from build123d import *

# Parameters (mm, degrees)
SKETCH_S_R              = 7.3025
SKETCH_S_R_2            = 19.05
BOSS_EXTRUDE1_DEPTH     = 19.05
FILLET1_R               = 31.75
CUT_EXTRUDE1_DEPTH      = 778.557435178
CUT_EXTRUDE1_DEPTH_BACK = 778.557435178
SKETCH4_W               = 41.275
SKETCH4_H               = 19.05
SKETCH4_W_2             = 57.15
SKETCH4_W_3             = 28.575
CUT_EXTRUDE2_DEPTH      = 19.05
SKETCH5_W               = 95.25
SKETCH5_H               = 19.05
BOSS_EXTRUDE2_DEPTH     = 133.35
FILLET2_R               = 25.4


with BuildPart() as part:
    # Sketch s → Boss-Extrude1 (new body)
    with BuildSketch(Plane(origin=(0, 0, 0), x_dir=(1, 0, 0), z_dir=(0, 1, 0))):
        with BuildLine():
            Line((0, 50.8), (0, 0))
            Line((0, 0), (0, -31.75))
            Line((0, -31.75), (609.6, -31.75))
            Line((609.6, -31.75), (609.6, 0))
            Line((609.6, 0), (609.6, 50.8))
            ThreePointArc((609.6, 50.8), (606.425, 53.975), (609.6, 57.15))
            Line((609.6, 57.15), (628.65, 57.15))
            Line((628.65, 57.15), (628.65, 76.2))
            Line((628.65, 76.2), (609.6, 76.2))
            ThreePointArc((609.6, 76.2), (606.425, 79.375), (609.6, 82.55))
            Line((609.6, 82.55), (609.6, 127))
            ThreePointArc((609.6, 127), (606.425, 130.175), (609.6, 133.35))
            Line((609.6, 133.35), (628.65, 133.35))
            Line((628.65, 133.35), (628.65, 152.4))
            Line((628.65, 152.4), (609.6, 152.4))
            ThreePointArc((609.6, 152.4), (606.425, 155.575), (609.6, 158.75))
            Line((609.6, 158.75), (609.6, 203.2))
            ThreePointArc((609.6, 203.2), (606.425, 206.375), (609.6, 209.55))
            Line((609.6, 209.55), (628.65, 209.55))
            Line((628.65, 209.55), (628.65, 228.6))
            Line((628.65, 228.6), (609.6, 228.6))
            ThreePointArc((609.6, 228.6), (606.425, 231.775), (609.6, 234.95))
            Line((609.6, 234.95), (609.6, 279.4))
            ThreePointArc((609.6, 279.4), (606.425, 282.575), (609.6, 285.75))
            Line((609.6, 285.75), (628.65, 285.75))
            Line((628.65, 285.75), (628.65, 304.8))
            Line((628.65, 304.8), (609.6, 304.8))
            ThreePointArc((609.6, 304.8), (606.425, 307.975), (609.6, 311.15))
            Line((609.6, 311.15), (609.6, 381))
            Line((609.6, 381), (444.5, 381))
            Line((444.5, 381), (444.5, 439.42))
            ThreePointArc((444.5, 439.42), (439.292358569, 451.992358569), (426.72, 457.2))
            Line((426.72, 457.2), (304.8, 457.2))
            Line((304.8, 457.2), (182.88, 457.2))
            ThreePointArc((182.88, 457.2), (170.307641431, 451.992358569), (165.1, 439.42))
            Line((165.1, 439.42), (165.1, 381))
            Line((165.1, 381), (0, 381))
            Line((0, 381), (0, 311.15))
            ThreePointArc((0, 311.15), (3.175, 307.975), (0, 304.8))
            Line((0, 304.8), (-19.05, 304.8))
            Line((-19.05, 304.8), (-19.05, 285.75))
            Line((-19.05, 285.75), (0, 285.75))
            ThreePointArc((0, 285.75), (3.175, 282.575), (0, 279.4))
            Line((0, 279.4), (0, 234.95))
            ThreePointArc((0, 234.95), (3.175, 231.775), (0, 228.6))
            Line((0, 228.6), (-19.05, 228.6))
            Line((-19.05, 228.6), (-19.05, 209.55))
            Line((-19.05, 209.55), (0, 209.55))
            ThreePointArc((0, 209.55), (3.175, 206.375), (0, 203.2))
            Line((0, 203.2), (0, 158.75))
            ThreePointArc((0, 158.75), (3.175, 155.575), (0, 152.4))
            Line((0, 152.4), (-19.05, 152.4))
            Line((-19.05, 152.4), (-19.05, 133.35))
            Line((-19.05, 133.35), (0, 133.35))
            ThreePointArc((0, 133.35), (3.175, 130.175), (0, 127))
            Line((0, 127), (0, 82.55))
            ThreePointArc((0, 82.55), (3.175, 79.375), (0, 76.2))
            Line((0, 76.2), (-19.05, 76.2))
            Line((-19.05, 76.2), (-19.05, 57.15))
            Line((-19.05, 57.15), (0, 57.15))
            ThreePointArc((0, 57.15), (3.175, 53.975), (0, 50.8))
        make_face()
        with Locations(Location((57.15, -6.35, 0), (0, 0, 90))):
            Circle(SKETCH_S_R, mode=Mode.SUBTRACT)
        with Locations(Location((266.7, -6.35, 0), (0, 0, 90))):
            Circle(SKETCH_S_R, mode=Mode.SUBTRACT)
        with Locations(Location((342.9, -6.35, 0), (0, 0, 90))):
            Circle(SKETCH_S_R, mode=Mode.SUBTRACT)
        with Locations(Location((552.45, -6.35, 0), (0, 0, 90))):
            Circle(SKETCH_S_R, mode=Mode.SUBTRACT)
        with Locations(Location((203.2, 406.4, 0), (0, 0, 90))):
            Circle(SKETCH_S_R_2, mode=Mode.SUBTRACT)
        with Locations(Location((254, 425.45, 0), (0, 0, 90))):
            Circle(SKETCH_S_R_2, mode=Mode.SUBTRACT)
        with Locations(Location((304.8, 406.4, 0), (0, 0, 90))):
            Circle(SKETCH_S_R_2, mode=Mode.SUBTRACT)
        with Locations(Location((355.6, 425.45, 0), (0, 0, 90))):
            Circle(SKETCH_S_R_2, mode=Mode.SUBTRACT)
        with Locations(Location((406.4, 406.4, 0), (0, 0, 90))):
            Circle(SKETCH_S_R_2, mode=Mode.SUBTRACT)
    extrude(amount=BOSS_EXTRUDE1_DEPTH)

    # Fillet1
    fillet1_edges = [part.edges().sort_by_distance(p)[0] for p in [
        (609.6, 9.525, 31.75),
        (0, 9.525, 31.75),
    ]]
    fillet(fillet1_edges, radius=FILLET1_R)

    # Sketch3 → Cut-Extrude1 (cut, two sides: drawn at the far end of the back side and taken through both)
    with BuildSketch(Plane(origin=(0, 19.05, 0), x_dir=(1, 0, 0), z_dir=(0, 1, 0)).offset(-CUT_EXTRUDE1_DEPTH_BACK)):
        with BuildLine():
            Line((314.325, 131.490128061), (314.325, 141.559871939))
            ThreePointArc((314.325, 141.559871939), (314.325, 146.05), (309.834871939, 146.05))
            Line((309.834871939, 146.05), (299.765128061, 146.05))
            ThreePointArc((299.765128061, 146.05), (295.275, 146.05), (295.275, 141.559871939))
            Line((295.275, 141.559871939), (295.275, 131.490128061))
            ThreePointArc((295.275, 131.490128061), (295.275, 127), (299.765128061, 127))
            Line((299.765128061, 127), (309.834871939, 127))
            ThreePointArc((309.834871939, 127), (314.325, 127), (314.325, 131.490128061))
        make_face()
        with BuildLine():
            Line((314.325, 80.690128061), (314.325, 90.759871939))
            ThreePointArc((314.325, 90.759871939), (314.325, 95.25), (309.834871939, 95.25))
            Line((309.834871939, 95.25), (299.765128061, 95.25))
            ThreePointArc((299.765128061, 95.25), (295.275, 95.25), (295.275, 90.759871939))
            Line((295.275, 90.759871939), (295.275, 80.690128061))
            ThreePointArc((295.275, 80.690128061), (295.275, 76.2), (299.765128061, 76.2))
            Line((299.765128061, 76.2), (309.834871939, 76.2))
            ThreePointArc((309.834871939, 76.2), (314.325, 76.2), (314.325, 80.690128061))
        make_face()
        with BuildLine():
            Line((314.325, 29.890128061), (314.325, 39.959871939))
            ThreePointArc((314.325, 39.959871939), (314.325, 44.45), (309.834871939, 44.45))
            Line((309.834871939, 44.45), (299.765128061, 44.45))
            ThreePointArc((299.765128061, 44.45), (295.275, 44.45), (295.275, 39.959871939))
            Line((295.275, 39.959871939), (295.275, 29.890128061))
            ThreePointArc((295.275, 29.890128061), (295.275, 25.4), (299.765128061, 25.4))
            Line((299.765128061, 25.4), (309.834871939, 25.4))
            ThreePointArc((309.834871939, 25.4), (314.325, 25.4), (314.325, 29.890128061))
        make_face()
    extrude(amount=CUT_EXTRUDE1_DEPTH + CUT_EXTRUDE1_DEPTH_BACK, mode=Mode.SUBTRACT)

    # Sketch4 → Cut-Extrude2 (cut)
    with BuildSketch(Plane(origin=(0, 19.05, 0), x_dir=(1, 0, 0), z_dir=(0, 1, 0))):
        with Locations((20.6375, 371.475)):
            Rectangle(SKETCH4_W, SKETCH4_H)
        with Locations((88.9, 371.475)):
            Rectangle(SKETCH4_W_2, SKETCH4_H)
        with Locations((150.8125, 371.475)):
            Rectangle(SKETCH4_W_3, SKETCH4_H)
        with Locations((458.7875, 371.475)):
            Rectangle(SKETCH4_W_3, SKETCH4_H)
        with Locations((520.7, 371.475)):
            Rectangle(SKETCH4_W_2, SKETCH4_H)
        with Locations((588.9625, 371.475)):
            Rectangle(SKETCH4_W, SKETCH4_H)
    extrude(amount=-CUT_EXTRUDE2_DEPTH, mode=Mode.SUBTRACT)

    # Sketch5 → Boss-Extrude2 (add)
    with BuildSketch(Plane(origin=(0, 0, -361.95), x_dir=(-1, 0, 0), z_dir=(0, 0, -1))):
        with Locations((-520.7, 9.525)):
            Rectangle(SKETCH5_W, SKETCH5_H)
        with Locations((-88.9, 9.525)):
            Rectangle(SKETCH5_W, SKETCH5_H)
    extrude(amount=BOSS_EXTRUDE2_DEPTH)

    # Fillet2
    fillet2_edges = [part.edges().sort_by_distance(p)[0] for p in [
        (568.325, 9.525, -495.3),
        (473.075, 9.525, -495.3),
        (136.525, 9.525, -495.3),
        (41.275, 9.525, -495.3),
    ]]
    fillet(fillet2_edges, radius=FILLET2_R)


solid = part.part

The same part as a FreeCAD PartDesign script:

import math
import FreeCAD as App
import Part
import Sketcher
Q = App.Units.Quantity


def edges_at(feature, points):
    """Names of the edges that pass closest to the given points."""
    edges = feature.Shape.Edges
    near = lambda p: min(range(len(edges)), key=lambda i: edges[i].distToShape(Part.Vertex(*p))[0])
    return sorted({f"Edge{near(p) + 1}" for p in points})


def add_polygon(sketch, points):
    """Adds a closed chain of lines whose ends are joined by coincident constraints."""
    first, n = sketch.GeometryCount, len(points)
    for a, b in zip(points, points[1:] + points[:1]):
        sketch.addGeometry(Part.LineSegment(App.Vector(*a, 0), App.Vector(*b, 0)), False)
    for i in range(n):
        sketch.addConstraint(Sketcher.Constraint("Coincident", first + i, 2, first + (i + 1) % n, 1))

doc = App.newDocument("Part")
body = doc.addObject("PartDesign::Body", "Body")

sketch1 = doc.addObject("Sketcher::SketchObject", "Sketch")
body.addObject(sketch1)
sketch1.AttachmentSupport = (doc.XZ_Plane, [""])
sketch1.MapMode = "FlatFace"
sketch1.addGeometry(Part.LineSegment(App.Vector(0, -50.8, 0), App.Vector(0, 31.8, 0)), False)
sketch1.addGeometry(Part.LineSegment(App.Vector(0, 31.8, 0), App.Vector(609.6, 31.8, 0)), False)
sketch1.addGeometry(Part.LineSegment(App.Vector(609.6, 31.8, 0), App.Vector(609.6, -50.8, 0)), False)
sketch1.addGeometry(Part.ArcOfCircle(Part.Circle(App.Vector(609.6, -54, 0), App.Vector(0, 0, 1), 3.2), math.radians(90), math.radians(270)), False)
sketch1.addGeometry(Part.LineSegment(App.Vector(609.6, -57.1, 0), App.Vector(628.6, -57.1, 0)), False)
sketch1.addGeometry(Part.LineSegment(App.Vector(628.6, -57.1, 0), App.Vector(628.6, -76.2, 0)), False)
sketch1.addGeometry(Part.LineSegment(App.Vector(628.6, -76.2, 0), App.Vector(609.6, -76.2, 0)), False)
sketch1.addGeometry(Part.ArcOfCircle(Part.Circle(App.Vector(609.6, -79.4, 0), App.Vector(0, 0, 1), 3.2), math.radians(90), math.radians(270)), False)
sketch1.addGeometry(Part.LineSegment(App.Vector(609.6, -82.5, 0), App.Vector(609.6, -127, 0)), False)
sketch1.addGeometry(Part.ArcOfCircle(Part.Circle(App.Vector(609.6, -130.2, 0), App.Vector(0, 0, 1), 3.2), math.radians(90), math.radians(270)), False)
sketch1.addGeometry(Part.LineSegment(App.Vector(609.6, -133.3, 0), App.Vector(628.6, -133.3, 0)), False)
sketch1.addGeometry(Part.LineSegment(App.Vector(628.6, -133.3, 0), App.Vector(628.6, -152.4, 0)), False)
sketch1.addGeometry(Part.LineSegment(App.Vector(628.6, -152.4, 0), App.Vector(609.6, -152.4, 0)), False)
sketch1.addGeometry(Part.ArcOfCircle(Part.Circle(App.Vector(609.6, -155.6, 0), App.Vector(0, 0, 1), 3.2), math.radians(90), math.radians(270)), False)
sketch1.addGeometry(Part.LineSegment(App.Vector(609.6, -158.8, 0), App.Vector(609.6, -203.2, 0)), False)
sketch1.addGeometry(Part.ArcOfCircle(Part.Circle(App.Vector(609.6, -206.4, 0), App.Vector(0, 0, 1), 3.2), math.radians(90), math.radians(270)), False)
sketch1.addGeometry(Part.LineSegment(App.Vector(609.6, -209.6, 0), App.Vector(628.6, -209.6, 0)), False)
sketch1.addGeometry(Part.LineSegment(App.Vector(628.6, -209.6, 0), App.Vector(628.6, -228.6, 0)), False)
sketch1.addGeometry(Part.LineSegment(App.Vector(628.6, -228.6, 0), App.Vector(609.6, -228.6, 0)), False)
sketch1.addGeometry(Part.ArcOfCircle(Part.Circle(App.Vector(609.6, -231.8, 0), App.Vector(0, 0, 1), 3.2), math.radians(90), math.radians(270)), False)
sketch1.addGeometry(Part.LineSegment(App.Vector(609.6, -234.9, 0), App.Vector(609.6, -279.4, 0)), False)
sketch1.addGeometry(Part.ArcOfCircle(Part.Circle(App.Vector(609.6, -282.6, 0), App.Vector(0, 0, 1), 3.2), math.radians(90), math.radians(270)), False)
sketch1.addGeometry(Part.LineSegment(App.Vector(609.6, -285.8, 0), App.Vector(628.6, -285.8, 0)), False)
sketch1.addGeometry(Part.LineSegment(App.Vector(628.6, -285.8, 0), App.Vector(628.6, -304.8, 0)), False)
sketch1.addGeometry(Part.LineSegment(App.Vector(628.6, -304.8, 0), App.Vector(609.6, -304.8, 0)), False)
sketch1.addGeometry(Part.ArcOfCircle(Part.Circle(App.Vector(609.6, -308, 0), App.Vector(0, 0, 1), 3.2), math.radians(90), math.radians(270)), False)
sketch1.addGeometry(Part.LineSegment(App.Vector(609.6, -311.1, 0), App.Vector(609.6, -381, 0)), False)
sketch1.addGeometry(Part.LineSegment(App.Vector(609.6, -381, 0), App.Vector(444.5, -381, 0)), False)
sketch1.addGeometry(Part.LineSegment(App.Vector(444.5, -381, 0), App.Vector(444.5, -439.4, 0)), False)
sketch1.addGeometry(Part.ArcOfCircle(Part.Circle(App.Vector(426.7, -439.4, 0), App.Vector(0, 0, 1), 17.8), math.radians(-90), math.radians(0)), False)
sketch1.addGeometry(Part.LineSegment(App.Vector(426.7, -457.2, 0), App.Vector(182.9, -457.2, 0)), False)
sketch1.addGeometry(Part.ArcOfCircle(Part.Circle(App.Vector(182.9, -439.4, 0), App.Vector(0, 0, 1), 17.8), math.radians(-180), math.radians(-90)), False)
sketch1.addGeometry(Part.LineSegment(App.Vector(165.1, -439.4, 0), App.Vector(165.1, -381, 0)), False)
sketch1.addGeometry(Part.LineSegment(App.Vector(165.1, -381, 0), App.Vector(0, -381, 0)), False)
sketch1.addGeometry(Part.LineSegment(App.Vector(0, -381, 0), App.Vector(0, -311.1, 0)), False)
sketch1.addGeometry(Part.ArcOfCircle(Part.Circle(App.Vector(0, -308, 0), App.Vector(0, 0, 1), 3.2), math.radians(-90), math.radians(90)), False)
sketch1.addGeometry(Part.LineSegment(App.Vector(0, -304.8, 0), App.Vector(-19.1, -304.8, 0)), False)
sketch1.addGeometry(Part.LineSegment(App.Vector(-19.1, -304.8, 0), App.Vector(-19.1, -285.8, 0)), False)
sketch1.addGeometry(Part.LineSegment(App.Vector(-19.1, -285.8, 0), App.Vector(0, -285.8, 0)), False)
sketch1.addGeometry(Part.ArcOfCircle(Part.Circle(App.Vector(0, -282.6, 0), App.Vector(0, 0, 1), 3.2), math.radians(-90), math.radians(90)), False)
sketch1.addGeometry(Part.LineSegment(App.Vector(0, -279.4, 0), App.Vector(0, -234.9, 0)), False)
sketch1.addGeometry(Part.ArcOfCircle(Part.Circle(App.Vector(0, -231.8, 0), App.Vector(0, 0, 1), 3.2), math.radians(-90), math.radians(90)), False)
sketch1.addGeometry(Part.LineSegment(App.Vector(0, -228.6, 0), App.Vector(-19.1, -228.6, 0)), False)
sketch1.addGeometry(Part.LineSegment(App.Vector(-19.1, -228.6, 0), App.Vector(-19.1, -209.6, 0)), False)
sketch1.addGeometry(Part.LineSegment(App.Vector(-19.1, -209.6, 0), App.Vector(0, -209.6, 0)), False)
sketch1.addGeometry(Part.ArcOfCircle(Part.Circle(App.Vector(0, -206.4, 0), App.Vector(0, 0, 1), 3.2), math.radians(-90), math.radians(90)), False)
sketch1.addGeometry(Part.LineSegment(App.Vector(0, -203.2, 0), App.Vector(0, -158.8, 0)), False)
sketch1.addGeometry(Part.ArcOfCircle(Part.Circle(App.Vector(0, -155.6, 0), App.Vector(0, 0, 1), 3.2), math.radians(-90), math.radians(90)), False)
sketch1.addGeometry(Part.LineSegment(App.Vector(0, -152.4, 0), App.Vector(-19.1, -152.4, 0)), False)
sketch1.addGeometry(Part.LineSegment(App.Vector(-19.1, -152.4, 0), App.Vector(-19.1, -133.3, 0)), False)
sketch1.addGeometry(Part.LineSegment(App.Vector(-19.1, -133.3, 0), App.Vector(0, -133.3, 0)), False)
sketch1.addGeometry(Part.ArcOfCircle(Part.Circle(App.Vector(0, -130.2, 0), App.Vector(0, 0, 1), 3.2), math.radians(-90), math.radians(90)), False)
sketch1.addGeometry(Part.LineSegment(App.Vector(0, -127, 0), App.Vector(0, -82.5, 0)), False)
sketch1.addGeometry(Part.ArcOfCircle(Part.Circle(App.Vector(0, -79.4, 0), App.Vector(0, 0, 1), 3.2), math.radians(-90), math.radians(90)), False)
sketch1.addGeometry(Part.LineSegment(App.Vector(0, -76.2, 0), App.Vector(-19.1, -76.2, 0)), False)
sketch1.addGeometry(Part.LineSegment(App.Vector(-19.1, -76.2, 0), App.Vector(-19.1, -57.1, 0)), False)
sketch1.addGeometry(Part.LineSegment(App.Vector(-19.1, -57.1, 0), App.Vector(0, -57.1, 0)), False)
sketch1.addGeometry(Part.ArcOfCircle(Part.Circle(App.Vector(0, -54, 0), App.Vector(0, 0, 1), 3.2), math.radians(-90), math.radians(90)), False)
sketch1.addGeometry(Part.Circle(App.Vector(57.1, 6.3, 0), App.Vector(0, 0, 1), 7.3), False)
sketch1.addGeometry(Part.Circle(App.Vector(266.7, 6.3, 0), App.Vector(0, 0, 1), 7.3), False)
sketch1.addGeometry(Part.Circle(App.Vector(342.9, 6.3, 0), App.Vector(0, 0, 1), 7.3), False)
sketch1.addGeometry(Part.Circle(App.Vector(552.5, 6.3, 0), App.Vector(0, 0, 1), 7.3), False)
sketch1.addGeometry(Part.Circle(App.Vector(203.2, -406.4, 0), App.Vector(0, 0, 1), 19.1), False)
sketch1.addGeometry(Part.Circle(App.Vector(304.8, -406.4, 0), App.Vector(0, 0, 1), 19.1), False)
sketch1.addGeometry(Part.Circle(App.Vector(254, -425.4, 0), App.Vector(0, 0, 1), 19.1), False)
sketch1.addGeometry(Part.Circle(App.Vector(355.6, -425.4, 0), App.Vector(0, 0, 1), 19.1), False)
sketch1.addGeometry(Part.Circle(App.Vector(406.4, -406.4, 0), App.Vector(0, 0, 1), 19.1), False)
sketch1.addConstraint(Sketcher.Constraint("Coincident", 0, 2, 1, 1))
sketch1.addConstraint(Sketcher.Constraint("Coincident", 1, 2, 2, 1))
sketch1.addConstraint(Sketcher.Constraint("Coincident", 2, 2, 3, 1))
sketch1.addConstraint(Sketcher.Constraint("Tangent", 3, 2, 4, 1))
sketch1.addConstraint(Sketcher.Constraint("Coincident", 4, 2, 5, 1))
sketch1.addConstraint(Sketcher.Constraint("Coincident", 5, 2, 6, 1))
sketch1.addConstraint(Sketcher.Constraint("Tangent", 6, 2, 7, 1))
sketch1.addConstraint(Sketcher.Constraint("Coincident", 7, 2, 8, 1))
sketch1.addConstraint(Sketcher.Constraint("Coincident", 8, 2, 9, 1))
sketch1.addConstraint(Sketcher.Constraint("Tangent", 9, 2, 10, 1))
sketch1.addConstraint(Sketcher.Constraint("Coincident", 10, 2, 11, 1))
sketch1.addConstraint(Sketcher.Constraint("Coincident", 11, 2, 12, 1))
sketch1.addConstraint(Sketcher.Constraint("Tangent", 12, 2, 13, 1))
sketch1.addConstraint(Sketcher.Constraint("Coincident", 13, 2, 14, 1))
sketch1.addConstraint(Sketcher.Constraint("Coincident", 14, 2, 15, 1))
sketch1.addConstraint(Sketcher.Constraint("Tangent", 15, 2, 16, 1))
sketch1.addConstraint(Sketcher.Constraint("Coincident", 16, 2, 17, 1))
sketch1.addConstraint(Sketcher.Constraint("Coincident", 17, 2, 18, 1))
sketch1.addConstraint(Sketcher.Constraint("Tangent", 18, 2, 19, 1))
sketch1.addConstraint(Sketcher.Constraint("Coincident", 19, 2, 20, 1))
sketch1.addConstraint(Sketcher.Constraint("Coincident", 20, 2, 21, 1))
sketch1.addConstraint(Sketcher.Constraint("Tangent", 21, 2, 22, 1))
sketch1.addConstraint(Sketcher.Constraint("Coincident", 22, 2, 23, 1))
sketch1.addConstraint(Sketcher.Constraint("Coincident", 23, 2, 24, 1))
sketch1.addConstraint(Sketcher.Constraint("Tangent", 24, 2, 25, 1))
sketch1.addConstraint(Sketcher.Constraint("Coincident", 25, 2, 26, 1))
sketch1.addConstraint(Sketcher.Constraint("Coincident", 26, 2, 27, 1))
sketch1.addConstraint(Sketcher.Constraint("Coincident", 27, 2, 28, 1))
sketch1.addConstraint(Sketcher.Constraint("Tangent", 28, 2, 29, 2))
sketch1.addConstraint(Sketcher.Constraint("Tangent", 29, 1, 30, 1))
sketch1.addConstraint(Sketcher.Constraint("Tangent", 30, 2, 31, 2))
sketch1.addConstraint(Sketcher.Constraint("Tangent", 31, 1, 32, 1))
sketch1.addConstraint(Sketcher.Constraint("Coincident", 32, 2, 33, 1))
sketch1.addConstraint(Sketcher.Constraint("Coincident", 33, 2, 34, 1))
sketch1.addConstraint(Sketcher.Constraint("Coincident", 34, 2, 35, 1))
sketch1.addConstraint(Sketcher.Constraint("Tangent", 35, 2, 36, 1))
sketch1.addConstraint(Sketcher.Constraint("Coincident", 36, 2, 37, 1))
sketch1.addConstraint(Sketcher.Constraint("Coincident", 37, 2, 38, 1))
sketch1.addConstraint(Sketcher.Constraint("Tangent", 38, 2, 39, 1))
sketch1.addConstraint(Sketcher.Constraint("Coincident", 39, 2, 40, 1))
sketch1.addConstraint(Sketcher.Constraint("Coincident", 40, 2, 41, 1))
sketch1.addConstraint(Sketcher.Constraint("Tangent", 41, 2, 42, 1))
sketch1.addConstraint(Sketcher.Constraint("Coincident", 42, 2, 43, 1))
sketch1.addConstraint(Sketcher.Constraint("Coincident", 43, 2, 44, 1))
sketch1.addConstraint(Sketcher.Constraint("Tangent", 44, 2, 45, 1))
sketch1.addConstraint(Sketcher.Constraint("Coincident", 45, 2, 46, 1))
sketch1.addConstraint(Sketcher.Constraint("Coincident", 46, 2, 47, 1))
sketch1.addConstraint(Sketcher.Constraint("Tangent", 47, 2, 48, 1))
sketch1.addConstraint(Sketcher.Constraint("Coincident", 48, 2, 49, 1))
sketch1.addConstraint(Sketcher.Constraint("Coincident", 49, 2, 50, 1))
sketch1.addConstraint(Sketcher.Constraint("Tangent", 50, 2, 51, 1))
sketch1.addConstraint(Sketcher.Constraint("Coincident", 51, 2, 52, 1))
sketch1.addConstraint(Sketcher.Constraint("Coincident", 52, 2, 53, 1))
sketch1.addConstraint(Sketcher.Constraint("Tangent", 53, 2, 54, 1))
sketch1.addConstraint(Sketcher.Constraint("Coincident", 54, 2, 55, 1))
sketch1.addConstraint(Sketcher.Constraint("Coincident", 55, 2, 56, 1))
sketch1.addConstraint(Sketcher.Constraint("Tangent", 56, 2, 57, 1))
sketch1.addConstraint(Sketcher.Constraint("Coincident", 57, 2, 0, 1))
sketch1.addConstraint(Sketcher.Constraint("Vertical", 0))
sketch1.addConstraint(Sketcher.Constraint("Horizontal", 1))
sketch1.addConstraint(Sketcher.Constraint("Vertical", 2))
sketch1.addConstraint(Sketcher.Constraint("Horizontal", 4))
sketch1.addConstraint(Sketcher.Constraint("Vertical", 5))
sketch1.addConstraint(Sketcher.Constraint("Horizontal", 6))
sketch1.addConstraint(Sketcher.Constraint("Vertical", 8))
sketch1.addConstraint(Sketcher.Constraint("Horizontal", 10))
sketch1.addConstraint(Sketcher.Constraint("Vertical", 11))
sketch1.addConstraint(Sketcher.Constraint("Horizontal", 12))
sketch1.addConstraint(Sketcher.Constraint("Vertical", 14))
sketch1.addConstraint(Sketcher.Constraint("Horizontal", 16))
sketch1.addConstraint(Sketcher.Constraint("Vertical", 17))
sketch1.addConstraint(Sketcher.Constraint("Horizontal", 18))
sketch1.addConstraint(Sketcher.Constraint("Vertical", 20))
sketch1.addConstraint(Sketcher.Constraint("Horizontal", 22))
sketch1.addConstraint(Sketcher.Constraint("Vertical", 23))
sketch1.addConstraint(Sketcher.Constraint("Horizontal", 24))
sketch1.addConstraint(Sketcher.Constraint("Vertical", 26))
sketch1.addConstraint(Sketcher.Constraint("Horizontal", 27))
sketch1.addConstraint(Sketcher.Constraint("Vertical", 28))
sketch1.addConstraint(Sketcher.Constraint("Horizontal", 30))
sketch1.addConstraint(Sketcher.Constraint("Vertical", 32))
sketch1.addConstraint(Sketcher.Constraint("Horizontal", 33))
sketch1.addConstraint(Sketcher.Constraint("Vertical", 34))
sketch1.addConstraint(Sketcher.Constraint("Horizontal", 36))
sketch1.addConstraint(Sketcher.Constraint("Vertical", 37))
sketch1.addConstraint(Sketcher.Constraint("Horizontal", 38))
sketch1.addConstraint(Sketcher.Constraint("Vertical", 40))
sketch1.addConstraint(Sketcher.Constraint("Horizontal", 42))
sketch1.addConstraint(Sketcher.Constraint("Vertical", 43))
sketch1.addConstraint(Sketcher.Constraint("Horizontal", 44))
sketch1.addConstraint(Sketcher.Constraint("Vertical", 46))
sketch1.addConstraint(Sketcher.Constraint("Horizontal", 48))
sketch1.addConstraint(Sketcher.Constraint("Vertical", 49))
sketch1.addConstraint(Sketcher.Constraint("Horizontal", 50))
sketch1.addConstraint(Sketcher.Constraint("Vertical", 52))
sketch1.addConstraint(Sketcher.Constraint("Horizontal", 54))
sketch1.addConstraint(Sketcher.Constraint("Vertical", 55))
sketch1.addConstraint(Sketcher.Constraint("Horizontal", 56))
sketch1.addConstraint(Sketcher.Constraint("Equal", 3, 7))
sketch1.addConstraint(Sketcher.Constraint("Equal", 7, 9))
sketch1.addConstraint(Sketcher.Constraint("Equal", 9, 13))
sketch1.addConstraint(Sketcher.Constraint("Equal", 13, 15))
sketch1.addConstraint(Sketcher.Constraint("Equal", 15, 19))
sketch1.addConstraint(Sketcher.Constraint("Equal", 19, 21))
sketch1.addConstraint(Sketcher.Constraint("Equal", 21, 25))
sketch1.addConstraint(Sketcher.Constraint("Equal", 29, 31))
sketch1.addConstraint(Sketcher.Constraint("Equal", 25, 35))
sketch1.addConstraint(Sketcher.Constraint("Equal", 35, 39))
sketch1.addConstraint(Sketcher.Constraint("Equal", 39, 41))
sketch1.addConstraint(Sketcher.Constraint("Equal", 41, 45))
sketch1.addConstraint(Sketcher.Constraint("Equal", 45, 47))
sketch1.addConstraint(Sketcher.Constraint("Equal", 47, 51))
sketch1.addConstraint(Sketcher.Constraint("Equal", 51, 53))
sketch1.addConstraint(Sketcher.Constraint("Equal", 53, 57))
sketch1.addConstraint(Sketcher.Constraint("Equal", 58, 59))
sketch1.addConstraint(Sketcher.Constraint("Equal", 59, 60))
sketch1.addConstraint(Sketcher.Constraint("Equal", 60, 61))
sketch1.addConstraint(Sketcher.Constraint("Equal", 62, 63))
sketch1.addConstraint(Sketcher.Constraint("Equal", 63, 64))
sketch1.addConstraint(Sketcher.Constraint("Equal", 64, 65))
sketch1.addConstraint(Sketcher.Constraint("Equal", 65, 66))
sketch1.addConstraint(Sketcher.Constraint("PointOnObject", 35, 3, -2))
sketch1.addConstraint(Sketcher.Constraint("PointOnObject", 39, 3, -2))
sketch1.addConstraint(Sketcher.Constraint("PointOnObject", 41, 3, -2))
sketch1.addConstraint(Sketcher.Constraint("PointOnObject", 45, 3, -2))
sketch1.addConstraint(Sketcher.Constraint("PointOnObject", 47, 3, -2))
sketch1.addConstraint(Sketcher.Constraint("PointOnObject", 51, 3, -2))
sketch1.addConstraint(Sketcher.Constraint("PointOnObject", 53, 3, -2))
sketch1.addConstraint(Sketcher.Constraint("PointOnObject", 57, 3, -2))
sketch1.addConstraint(Sketcher.Constraint("PointOnObject", 0, 2, -2))
sketch1.addConstraint(Sketcher.Constraint("PointOnObject", 33, 2, -2))
sketch1.addConstraint(Sketcher.Constraint("PointOnObject", 39, 2, -2))
sketch1.addConstraint(Sketcher.Constraint("PointOnObject", 45, 2, -2))
sketch1.addConstraint(Sketcher.Constraint("PointOnObject", 51, 2, -2))
sketch1.addConstraint(Sketcher.Constraint("Horizontal", 25, 3, 35, 3))
sketch1.addConstraint(Sketcher.Constraint("Horizontal", 21, 3, 39, 3))
sketch1.addConstraint(Sketcher.Constraint("Horizontal", 19, 3, 41, 3))
sketch1.addConstraint(Sketcher.Constraint("Horizontal", 15, 3, 45, 3))
sketch1.addConstraint(Sketcher.Constraint("Horizontal", 13, 3, 47, 3))
sketch1.addConstraint(Sketcher.Constraint("Horizontal", 9, 3, 51, 3))
sketch1.addConstraint(Sketcher.Constraint("Horizontal", 7, 3, 53, 3))
sketch1.addConstraint(Sketcher.Constraint("Horizontal", 3, 3, 57, 3))
sketch1.addConstraint(Sketcher.Constraint("Horizontal", 58, 3, 59, 3))
sketch1.addConstraint(Sketcher.Constraint("Horizontal", 59, 3, 60, 3))
sketch1.addConstraint(Sketcher.Constraint("Horizontal", 60, 3, 61, 3))
sketch1.addConstraint(Sketcher.Constraint("Horizontal", 62, 3, 63, 3))
sketch1.addConstraint(Sketcher.Constraint("Horizontal", 64, 3, 65, 3))
sketch1.addConstraint(Sketcher.Constraint("Horizontal", 63, 3, 66, 3))
sketch1.addConstraint(Sketcher.Constraint("Horizontal", 27, 2, 32, 2))
sketch1.addConstraint(Sketcher.Constraint("Vertical", 3, 3, 7, 3))
sketch1.addConstraint(Sketcher.Constraint("Vertical", 7, 3, 9, 3))
sketch1.addConstraint(Sketcher.Constraint("Vertical", 9, 3, 13, 3))
sketch1.addConstraint(Sketcher.Constraint("Vertical", 13, 3, 15, 3))
sketch1.addConstraint(Sketcher.Constraint("Vertical", 15, 3, 19, 3))
sketch1.addConstraint(Sketcher.Constraint("Vertical", 19, 3, 21, 3))
sketch1.addConstraint(Sketcher.Constraint("Vertical", 21, 3, 25, 3))
sketch1.addConstraint(Sketcher.Constraint("Vertical", 25, 3, 1, 2))
sketch1.addConstraint(Sketcher.Constraint("Vertical", 6, 2, 7, 2))
sketch1.addConstraint(Sketcher.Constraint("Vertical", 5, 2, 10, 2))
sketch1.addConstraint(Sketcher.Constraint("Vertical", 12, 2, 13, 2))
sketch1.addConstraint(Sketcher.Constraint("Vertical", 11, 2, 16, 2))
sketch1.addConstraint(Sketcher.Constraint("Vertical", 18, 2, 19, 2))
sketch1.addConstraint(Sketcher.Constraint("Vertical", 17, 2, 22, 2))
sketch1.addConstraint(Sketcher.Constraint("Vertical", 24, 2, 25, 2))
sketch1.addConstraint(Sketcher.Constraint("Vertical", 37, 2, 42, 2))
sketch1.addConstraint(Sketcher.Constraint("Vertical", 43, 2, 48, 2))
sketch1.addConstraint(Sketcher.Constraint("Vertical", 49, 2, 54, 2))
sketch1.addConstraint(Sketcher.Constraint("Equal", 27, 33))
sketch1.addConstraint(Sketcher.Constraint("Equal", 24, 36))
sketch1.addConstraint(Sketcher.Constraint("Equal", 56, 5))
sketch1.addConstraint(Sketcher.Constraint("Equal", 5, 11))
sketch1.addConstraint(Sketcher.Constraint("Equal", 8, 14))
sketch1.addConstraint(Sketcher.Constraint("Equal", 11, 17))
sketch1.addConstraint(Sketcher.Constraint("Equal", 14, 20))
sketch1.addConstraint(Sketcher.Constraint("Equal", 17, 23))
sketch1.addConstraint(Sketcher.Constraint("Diameter", 62, Q("1.5 in")))
sketch1.addConstraint(Sketcher.Constraint("Radius", 29, Q("0.7 in")))
sketch1.addConstraint(Sketcher.Constraint("DistanceX", 1, 1, 1, 2, Q("24 in")))
sketch1.addConstraint(Sketcher.Constraint("Diameter", 58, Q("0.575 in")))
sketch1.addConstraint(Sketcher.Constraint("DistanceX", 27, 2, 27, 1, Q("6.5 in")))
sketch1.addConstraint(Sketcher.Constraint("DistanceY", 28, 2, 28, 1, Q("2.3 in")))
sketch1.addConstraint(Sketcher.Constraint("DistanceX", -1, 1, 62, 3, Q("8 in")))
sketch1.addConstraint(Sketcher.Constraint("DistanceY", 62, 3, -1, 1, Q("16 in")))
sketch1.addConstraint(Sketcher.Constraint("DistanceX", -1, 1, 63, 3, Q("12 in")))
sketch1.addConstraint(Sketcher.Constraint("DistanceX", -1, 1, 64, 3, Q("10 in")))
sketch1.addConstraint(Sketcher.Constraint("DistanceX", -1, 1, 65, 3, Q("14 in")))
sketch1.addConstraint(Sketcher.Constraint("DistanceX", -1, 1, 66, 3, Q("16 in")))
sketch1.addConstraint(Sketcher.Constraint("DistanceY", 2, 2, -1, 1, Q("2 in")))
sketch1.addConstraint(Sketcher.Constraint("DistanceY", 5, 2, -1, 1, Q("3 in")))
sketch1.addConstraint(Sketcher.Constraint("DistanceY", 8, 2, -1, 1, Q("5 in")))
sketch1.addConstraint(Sketcher.Constraint("DistanceY", 26, 2, -1, 1, Q("15 in")))
sketch1.addConstraint(Sketcher.Constraint("Radius", 3, Q("0.125 in")))
sketch1.addConstraint(Sketcher.Constraint("DistanceY", 0, 1, 0, 2, Q("3.25 in")))
sketch1.addConstraint(Sketcher.Constraint("DistanceX", -1, 1, 59, 3, Q("10.5 in")))
sketch1.addConstraint(Sketcher.Constraint("DistanceX", -1, 1, 60, 3, Q("13.5 in")))
sketch1.addConstraint(Sketcher.Constraint("DistanceX", -1, 1, 58, 3, Q("2.25 in")))
sketch1.addConstraint(Sketcher.Constraint("DistanceY", -1, 1, 58, 3, Q("0.25 in")))
sketch1.addConstraint(Sketcher.Constraint("DistanceX", -1, 1, 61, 3, Q("21.75 in")))
sketch1.addConstraint(Sketcher.Constraint("DistanceY", 64, 3, -1, 1, Q("16.75 in")))
pad1 = doc.addObject("PartDesign::Pad", "Pad")
body.addObject(pad1)
pad1.Profile = sketch1
pad1.Length = Q("0.75 in")
pad1.Reversed = True
doc.recompute()

fillet = doc.addObject("PartDesign::Fillet", "Fillet")
body.addObject(fillet)
fillet.Base = (pad1, edges_at(pad1, [(609.6, 9.525, 31.75), (0, 9.525, 31.75)]))
fillet.Radius = Q("1.25 in")

sketch2 = doc.addObject("Sketcher::SketchObject", "Sketch001")
body.addObject(sketch2)
sketch2.AttachmentSupport = (doc.XZ_Plane, [""])
sketch2.MapMode = "FlatFace"
sketch2.AttachmentOffset = App.Placement(App.Vector(0, 0, -0.75 * 25.4), App.Rotation())
sketch2.addGeometry(Part.LineSegment(App.Vector(314.3, -131.5, 0), App.Vector(314.3, -141.6, 0)), False)
sketch2.addGeometry(Part.ArcOfCircle(Part.Circle(App.Vector(312.1, -143.8, 0), App.Vector(0, 0, 1), 3.2), math.radians(-135), math.radians(45)), False)
sketch2.addGeometry(Part.LineSegment(App.Vector(309.8, -146.1, 0), App.Vector(299.8, -146.1, 0)), False)
sketch2.addGeometry(Part.ArcOfCircle(Part.Circle(App.Vector(297.5, -143.8, 0), App.Vector(0, 0, 1), 3.2), math.radians(135), math.radians(315)), False)
sketch2.addGeometry(Part.LineSegment(App.Vector(295.3, -141.6, 0), App.Vector(295.3, -131.5, 0)), False)
sketch2.addGeometry(Part.ArcOfCircle(Part.Circle(App.Vector(297.5, -129.2, 0), App.Vector(0, 0, 1), 3.2), math.radians(45), math.radians(225)), False)
sketch2.addGeometry(Part.LineSegment(App.Vector(299.8, -127, 0), App.Vector(309.8, -127, 0)), False)
sketch2.addGeometry(Part.ArcOfCircle(Part.Circle(App.Vector(312.1, -129.2, 0), App.Vector(0, 0, 1), 3.2), math.radians(-45), math.radians(135)), False)
sketch2.addGeometry(Part.LineSegment(App.Vector(314.3, -80.7, 0), App.Vector(314.3, -90.8, 0)), False)
sketch2.addGeometry(Part.ArcOfCircle(Part.Circle(App.Vector(312.1, -93, 0), App.Vector(0, 0, 1), 3.2), math.radians(-135), math.radians(45)), False)
sketch2.addGeometry(Part.LineSegment(App.Vector(309.8, -95.2, 0), App.Vector(299.8, -95.2, 0)), False)
sketch2.addGeometry(Part.ArcOfCircle(Part.Circle(App.Vector(297.5, -93, 0), App.Vector(0, 0, 1), 3.2), math.radians(135), math.radians(315)), False)
sketch2.addGeometry(Part.LineSegment(App.Vector(295.3, -90.8, 0), App.Vector(295.3, -80.7, 0)), False)
sketch2.addGeometry(Part.ArcOfCircle(Part.Circle(App.Vector(297.5, -78.4, 0), App.Vector(0, 0, 1), 3.2), math.radians(45), math.radians(225)), False)
sketch2.addGeometry(Part.LineSegment(App.Vector(299.8, -76.2, 0), App.Vector(309.8, -76.2, 0)), False)
sketch2.addGeometry(Part.ArcOfCircle(Part.Circle(App.Vector(312.1, -78.4, 0), App.Vector(0, 0, 1), 3.2), math.radians(-45), math.radians(135)), False)
sketch2.addGeometry(Part.LineSegment(App.Vector(314.3, -29.9, 0), App.Vector(314.3, -40, 0)), False)
sketch2.addGeometry(Part.ArcOfCircle(Part.Circle(App.Vector(312.1, -42.2, 0), App.Vector(0, 0, 1), 3.2), math.radians(-135), math.radians(45)), False)
sketch2.addGeometry(Part.LineSegment(App.Vector(309.8, -44.5, 0), App.Vector(299.8, -44.5, 0)), False)
sketch2.addGeometry(Part.ArcOfCircle(Part.Circle(App.Vector(297.5, -42.2, 0), App.Vector(0, 0, 1), 3.2), math.radians(135), math.radians(315)), False)
sketch2.addGeometry(Part.LineSegment(App.Vector(295.3, -40, 0), App.Vector(295.3, -29.9, 0)), False)
sketch2.addGeometry(Part.ArcOfCircle(Part.Circle(App.Vector(297.5, -27.6, 0), App.Vector(0, 0, 1), 3.2), math.radians(45), math.radians(225)), False)
sketch2.addGeometry(Part.LineSegment(App.Vector(299.8, -25.4, 0), App.Vector(309.8, -25.4, 0)), False)
sketch2.addGeometry(Part.ArcOfCircle(Part.Circle(App.Vector(312.1, -27.6, 0), App.Vector(0, 0, 1), 3.2), math.radians(-45), math.radians(135)), False)
sketch2.addConstraint(Sketcher.Constraint("Coincident", 0, 2, 1, 2))
sketch2.addConstraint(Sketcher.Constraint("Coincident", 1, 1, 2, 1))
sketch2.addConstraint(Sketcher.Constraint("Coincident", 2, 2, 3, 2))
sketch2.addConstraint(Sketcher.Constraint("Coincident", 3, 1, 4, 1))
sketch2.addConstraint(Sketcher.Constraint("Coincident", 4, 2, 5, 2))
sketch2.addConstraint(Sketcher.Constraint("Coincident", 5, 1, 6, 1))
sketch2.addConstraint(Sketcher.Constraint("Coincident", 6, 2, 7, 2))
sketch2.addConstraint(Sketcher.Constraint("Coincident", 7, 1, 0, 1))
sketch2.addConstraint(Sketcher.Constraint("Coincident", 8, 2, 9, 2))
sketch2.addConstraint(Sketcher.Constraint("Coincident", 9, 1, 10, 1))
sketch2.addConstraint(Sketcher.Constraint("Coincident", 10, 2, 11, 2))
sketch2.addConstraint(Sketcher.Constraint("Coincident", 11, 1, 12, 1))
sketch2.addConstraint(Sketcher.Constraint("Coincident", 12, 2, 13, 2))
sketch2.addConstraint(Sketcher.Constraint("Coincident", 13, 1, 14, 1))
sketch2.addConstraint(Sketcher.Constraint("Coincident", 14, 2, 15, 2))
sketch2.addConstraint(Sketcher.Constraint("Coincident", 15, 1, 8, 1))
sketch2.addConstraint(Sketcher.Constraint("Coincident", 16, 2, 17, 2))
sketch2.addConstraint(Sketcher.Constraint("Coincident", 17, 1, 18, 1))
sketch2.addConstraint(Sketcher.Constraint("Coincident", 18, 2, 19, 2))
sketch2.addConstraint(Sketcher.Constraint("Coincident", 19, 1, 20, 1))
sketch2.addConstraint(Sketcher.Constraint("Coincident", 20, 2, 21, 2))
sketch2.addConstraint(Sketcher.Constraint("Coincident", 21, 1, 22, 1))
sketch2.addConstraint(Sketcher.Constraint("Coincident", 22, 2, 23, 2))
sketch2.addConstraint(Sketcher.Constraint("Coincident", 23, 1, 16, 1))
sketch2.addConstraint(Sketcher.Constraint("Vertical", 0))
sketch2.addConstraint(Sketcher.Constraint("Horizontal", 2))
sketch2.addConstraint(Sketcher.Constraint("Vertical", 4))
sketch2.addConstraint(Sketcher.Constraint("Horizontal", 6))
sketch2.addConstraint(Sketcher.Constraint("Vertical", 8))
sketch2.addConstraint(Sketcher.Constraint("Horizontal", 10))
sketch2.addConstraint(Sketcher.Constraint("Vertical", 12))
sketch2.addConstraint(Sketcher.Constraint("Horizontal", 14))
sketch2.addConstraint(Sketcher.Constraint("Vertical", 16))
sketch2.addConstraint(Sketcher.Constraint("Horizontal", 18))
sketch2.addConstraint(Sketcher.Constraint("Vertical", 20))
sketch2.addConstraint(Sketcher.Constraint("Horizontal", 22))
sketch2.addConstraint(Sketcher.Constraint("Equal", 1, 3))
sketch2.addConstraint(Sketcher.Constraint("Equal", 3, 5))
sketch2.addConstraint(Sketcher.Constraint("Equal", 5, 7))
sketch2.addConstraint(Sketcher.Constraint("Equal", 7, 9))
sketch2.addConstraint(Sketcher.Constraint("Equal", 9, 11))
sketch2.addConstraint(Sketcher.Constraint("Equal", 11, 13))
sketch2.addConstraint(Sketcher.Constraint("Equal", 13, 15))
sketch2.addConstraint(Sketcher.Constraint("Equal", 15, 17))
sketch2.addConstraint(Sketcher.Constraint("Equal", 17, 19))
sketch2.addConstraint(Sketcher.Constraint("Equal", 19, 21))
sketch2.addConstraint(Sketcher.Constraint("Equal", 21, 23))
sketch2.addConstraint(Sketcher.Constraint("Horizontal", 1, 3, 3, 3))
sketch2.addConstraint(Sketcher.Constraint("Horizontal", 5, 3, 7, 3))
sketch2.addConstraint(Sketcher.Constraint("Horizontal", 9, 3, 11, 3))
sketch2.addConstraint(Sketcher.Constraint("Horizontal", 13, 3, 15, 3))
sketch2.addConstraint(Sketcher.Constraint("Horizontal", 17, 3, 19, 3))
sketch2.addConstraint(Sketcher.Constraint("Horizontal", 21, 3, 23, 3))
sketch2.addConstraint(Sketcher.Constraint("Horizontal", 0, 2, 3, 1))
sketch2.addConstraint(Sketcher.Constraint("Horizontal", 4, 2, 7, 1))
sketch2.addConstraint(Sketcher.Constraint("Horizontal", 8, 2, 11, 1))
sketch2.addConstraint(Sketcher.Constraint("Horizontal", 12, 2, 15, 1))
sketch2.addConstraint(Sketcher.Constraint("Horizontal", 16, 2, 19, 1))
sketch2.addConstraint(Sketcher.Constraint("Horizontal", 20, 2, 23, 1))
sketch2.addConstraint(Sketcher.Constraint("Vertical", 3, 3, 5, 3))
sketch2.addConstraint(Sketcher.Constraint("Vertical", 7, 3, 9, 3))
sketch2.addConstraint(Sketcher.Constraint("Vertical", 5, 3, 11, 3))
sketch2.addConstraint(Sketcher.Constraint("Vertical", 11, 3, 13, 3))
sketch2.addConstraint(Sketcher.Constraint("Vertical", 15, 3, 17, 3))
sketch2.addConstraint(Sketcher.Constraint("Vertical", 13, 3, 19, 3))
sketch2.addConstraint(Sketcher.Constraint("Vertical", 19, 3, 21, 3))
sketch2.addConstraint(Sketcher.Constraint("Vertical", 2, 2, 5, 1))
sketch2.addConstraint(Sketcher.Constraint("Vertical", 7, 1, 8, 2))
sketch2.addConstraint(Sketcher.Constraint("Vertical", 6, 2, 9, 1))
sketch2.addConstraint(Sketcher.Constraint("Vertical", 10, 2, 13, 1))
sketch2.addConstraint(Sketcher.Constraint("Vertical", 15, 1, 16, 2))
sketch2.addConstraint(Sketcher.Constraint("Vertical", 14, 2, 17, 1))
sketch2.addConstraint(Sketcher.Constraint("Vertical", 18, 2, 21, 1))
sketch2.addConstraint(Sketcher.Constraint("Equal", 22, 0))
sketch2.addConstraint(Sketcher.Constraint("Equal", 4, 8))
sketch2.addConstraint(Sketcher.Constraint("Equal", 12, 16))
sketch2.addConstraint(Sketcher.Constraint("DistanceY", 5, 1, -1, 1, Q("5 in")))
sketch2.addConstraint(Sketcher.Constraint("DistanceY", 13, 1, -1, 1, Q("3 in")))
sketch2.addConstraint(Sketcher.Constraint("DistanceY", 21, 1, -1, 1, Q("1 in")))
sketch2.addConstraint(Sketcher.Constraint("Radius", 1, Q("0.125 in")))
sketch2.addConstraint(Sketcher.Constraint("DistanceY", 1, 1, -1, 1, Q("5.75 in")))
sketch2.addConstraint(Sketcher.Constraint("DistanceX", -1, 1, 0, 2, Q("12.375 in")))
sketch2.addConstraint(Sketcher.Constraint("DistanceX", -1, 1, 3, 1, Q("11.625 in")))
sketch2.addConstraint(Sketcher.Constraint("DistanceX", 3, 3, 1, 3, Q("14.559872 mm")))
pocket1 = doc.addObject("PartDesign::Pocket", "Pocket")
body.addObject(pocket1)
pocket1.Profile = sketch2
pocket1.Type = "ThroughAll"
pocket1.Midplane = True

sketch3 = doc.addObject("Sketcher::SketchObject", "Sketch002")
body.addObject(sketch3)
sketch3.AttachmentSupport = (doc.XZ_Plane, [""])
sketch3.MapMode = "FlatFace"
sketch3.AttachmentOffset = App.Placement(App.Vector(0, 0, -0.75 * 25.4), App.Rotation())
add_polygon(sketch3, [(0, -381), (0, -362), (41, -362), (41, -381)])
add_polygon(sketch3, [(60, -381), (60, -362), (117, -362), (117, -381)])
add_polygon(sketch3, [(137, -381), (137, -362), (165, -362), (165, -381)])
add_polygon(sketch3, [(444, -381), (444, -362), (473, -362), (473, -381)])
add_polygon(sketch3, [(492, -381), (492, -362), (549, -362), (549, -381)])
add_polygon(sketch3, [(568, -381), (568, -362), (610, -362), (610, -381)])
sketch3.addConstraint(Sketcher.Constraint("Vertical", 0))
sketch3.addConstraint(Sketcher.Constraint("Horizontal", 1))
sketch3.addConstraint(Sketcher.Constraint("Vertical", 2))
sketch3.addConstraint(Sketcher.Constraint("Horizontal", 3))
sketch3.addConstraint(Sketcher.Constraint("Vertical", 4))
sketch3.addConstraint(Sketcher.Constraint("Horizontal", 5))
sketch3.addConstraint(Sketcher.Constraint("Vertical", 6))
sketch3.addConstraint(Sketcher.Constraint("Horizontal", 7))
sketch3.addConstraint(Sketcher.Constraint("Vertical", 8))
sketch3.addConstraint(Sketcher.Constraint("Horizontal", 9))
sketch3.addConstraint(Sketcher.Constraint("Vertical", 10))
sketch3.addConstraint(Sketcher.Constraint("Horizontal", 11))
sketch3.addConstraint(Sketcher.Constraint("Vertical", 12))
sketch3.addConstraint(Sketcher.Constraint("Horizontal", 13))
sketch3.addConstraint(Sketcher.Constraint("Vertical", 14))
sketch3.addConstraint(Sketcher.Constraint("Horizontal", 15))
sketch3.addConstraint(Sketcher.Constraint("Vertical", 16))
sketch3.addConstraint(Sketcher.Constraint("Horizontal", 17))
sketch3.addConstraint(Sketcher.Constraint("Vertical", 18))
sketch3.addConstraint(Sketcher.Constraint("Horizontal", 19))
sketch3.addConstraint(Sketcher.Constraint("Vertical", 20))
sketch3.addConstraint(Sketcher.Constraint("Horizontal", 21))
sketch3.addConstraint(Sketcher.Constraint("Vertical", 22))
sketch3.addConstraint(Sketcher.Constraint("Horizontal", 23))
sketch3.addConstraint(Sketcher.Constraint("PointOnObject", 0, 2, -2))
sketch3.addConstraint(Sketcher.Constraint("Horizontal", 1, 2, 4, 2))
sketch3.addConstraint(Sketcher.Constraint("Horizontal", 3, 2, 6, 2))
sketch3.addConstraint(Sketcher.Constraint("Horizontal", 5, 2, 8, 2))
sketch3.addConstraint(Sketcher.Constraint("Horizontal", 7, 2, 10, 2))
sketch3.addConstraint(Sketcher.Constraint("Horizontal", 9, 2, 12, 2))
sketch3.addConstraint(Sketcher.Constraint("Horizontal", 11, 2, 14, 2))
sketch3.addConstraint(Sketcher.Constraint("Horizontal", 13, 2, 16, 2))
sketch3.addConstraint(Sketcher.Constraint("Horizontal", 15, 2, 18, 2))
sketch3.addConstraint(Sketcher.Constraint("Horizontal", 17, 2, 20, 2))
sketch3.addConstraint(Sketcher.Constraint("Horizontal", 19, 2, 22, 2))
sketch3.addConstraint(Sketcher.Constraint("Equal", 11, 13))
sketch3.addConstraint(Sketcher.Constraint("Equal", 7, 17))
sketch3.addConstraint(Sketcher.Constraint("Equal", 3, 21))
sketch3.addConstraint(Sketcher.Constraint("DistanceY", 2, 2, -1, 1, Q("15 in")))
sketch3.addConstraint(Sketcher.Constraint("DistanceX", -1, 1, 21, 2, Q("24 in")))
sketch3.addConstraint(Sketcher.Constraint("DistanceX", 1, 2, 5, 2, Q("3 in")))
sketch3.addConstraint(Sketcher.Constraint("DistanceX", 4, 2, 8, 2, Q("3 in")))
sketch3.addConstraint(Sketcher.Constraint("DistanceX", 9, 2, 12, 2, Q("11 in")))
sketch3.addConstraint(Sketcher.Constraint("DistanceX", 13, 2, 17, 2, Q("3 in")))
sketch3.addConstraint(Sketcher.Constraint("DistanceX", 16, 2, 20, 2, Q("3 in")))
sketch3.addConstraint(Sketcher.Constraint("DistanceX", 5, 1, 5, 2, Q("2.25 in")))
sketch3.addConstraint(Sketcher.Constraint("DistanceY", 0, 1, 0, 2, Q("0.75 in")))
sketch3.addConstraint(Sketcher.Constraint("DistanceX", 1, 1, 1, 2, Q("1.625 in")))
pocket2 = doc.addObject("PartDesign::Pocket", "Pocket001")
body.addObject(pocket2)
pocket2.Profile = sketch3
pocket2.Length = Q("0.75 in")
pocket2.Reversed = True

sketch4 = doc.addObject("Sketcher::SketchObject", "Sketch003")
body.addObject(sketch4)
sketch4.AttachmentSupport = (doc.XY_Plane, [""])
sketch4.MapMode = "FlatFace"
sketch4.AttachmentOffset = App.Placement(App.Vector(0, 0, -14.25 * 25.4), App.Rotation())
add_polygon(sketch4, [(568, 19), (568, 0), (473, 0), (473, 19)])
add_polygon(sketch4, [(137, 19), (137, 0), (41, 0), (41, 19)])
sketch4.addConstraint(Sketcher.Constraint("Vertical", 0))
sketch4.addConstraint(Sketcher.Constraint("Horizontal", 1))
sketch4.addConstraint(Sketcher.Constraint("Vertical", 2))
sketch4.addConstraint(Sketcher.Constraint("Horizontal", 3))
sketch4.addConstraint(Sketcher.Constraint("Vertical", 4))
sketch4.addConstraint(Sketcher.Constraint("Horizontal", 5))
sketch4.addConstraint(Sketcher.Constraint("Vertical", 6))
sketch4.addConstraint(Sketcher.Constraint("Horizontal", 7))
sketch4.addConstraint(Sketcher.Constraint("PointOnObject", 0, 2, -1))
sketch4.addConstraint(Sketcher.Constraint("PointOnObject", 4, 2, -1))
sketch4.addConstraint(Sketcher.Constraint("Horizontal", 3, 2, 6, 2))
sketch4.addConstraint(Sketcher.Constraint("Equal", 3, 5))
sketch4.addConstraint(Sketcher.Constraint("DistanceX", 4, 2, 0, 2, Q("17 in")))
sketch4.addConstraint(Sketcher.Constraint("DistanceX", 1, 2, 1, 1, Q("3.75 in")))
sketch4.addConstraint(Sketcher.Constraint("DistanceY", 0, 2, 0, 1, Q("0.75 in")))
sketch4.addConstraint(Sketcher.Constraint("DistanceX", -1, 1, 0, 2, Q("22.375 in")))
pad2 = doc.addObject("PartDesign::Pad", "Pad001")
body.addObject(pad2)
pad2.Profile = sketch4
pad2.Length = Q("5.25 in")
pad2.Reversed = True
doc.recompute()

fillet2 = doc.addObject("PartDesign::Fillet", "Fillet001")
body.addObject(fillet2)
fillet2.Base = (pad2, edges_at(pad2, [
    (568.325, 9.525, -495.3),
    (473.075, 9.525, -495.3),
    (136.525, 9.525, -495.3),
    (41.275, 9.525, -495.3),
]))
fillet2.Radius = Q("1 in")

doc.recompute()
